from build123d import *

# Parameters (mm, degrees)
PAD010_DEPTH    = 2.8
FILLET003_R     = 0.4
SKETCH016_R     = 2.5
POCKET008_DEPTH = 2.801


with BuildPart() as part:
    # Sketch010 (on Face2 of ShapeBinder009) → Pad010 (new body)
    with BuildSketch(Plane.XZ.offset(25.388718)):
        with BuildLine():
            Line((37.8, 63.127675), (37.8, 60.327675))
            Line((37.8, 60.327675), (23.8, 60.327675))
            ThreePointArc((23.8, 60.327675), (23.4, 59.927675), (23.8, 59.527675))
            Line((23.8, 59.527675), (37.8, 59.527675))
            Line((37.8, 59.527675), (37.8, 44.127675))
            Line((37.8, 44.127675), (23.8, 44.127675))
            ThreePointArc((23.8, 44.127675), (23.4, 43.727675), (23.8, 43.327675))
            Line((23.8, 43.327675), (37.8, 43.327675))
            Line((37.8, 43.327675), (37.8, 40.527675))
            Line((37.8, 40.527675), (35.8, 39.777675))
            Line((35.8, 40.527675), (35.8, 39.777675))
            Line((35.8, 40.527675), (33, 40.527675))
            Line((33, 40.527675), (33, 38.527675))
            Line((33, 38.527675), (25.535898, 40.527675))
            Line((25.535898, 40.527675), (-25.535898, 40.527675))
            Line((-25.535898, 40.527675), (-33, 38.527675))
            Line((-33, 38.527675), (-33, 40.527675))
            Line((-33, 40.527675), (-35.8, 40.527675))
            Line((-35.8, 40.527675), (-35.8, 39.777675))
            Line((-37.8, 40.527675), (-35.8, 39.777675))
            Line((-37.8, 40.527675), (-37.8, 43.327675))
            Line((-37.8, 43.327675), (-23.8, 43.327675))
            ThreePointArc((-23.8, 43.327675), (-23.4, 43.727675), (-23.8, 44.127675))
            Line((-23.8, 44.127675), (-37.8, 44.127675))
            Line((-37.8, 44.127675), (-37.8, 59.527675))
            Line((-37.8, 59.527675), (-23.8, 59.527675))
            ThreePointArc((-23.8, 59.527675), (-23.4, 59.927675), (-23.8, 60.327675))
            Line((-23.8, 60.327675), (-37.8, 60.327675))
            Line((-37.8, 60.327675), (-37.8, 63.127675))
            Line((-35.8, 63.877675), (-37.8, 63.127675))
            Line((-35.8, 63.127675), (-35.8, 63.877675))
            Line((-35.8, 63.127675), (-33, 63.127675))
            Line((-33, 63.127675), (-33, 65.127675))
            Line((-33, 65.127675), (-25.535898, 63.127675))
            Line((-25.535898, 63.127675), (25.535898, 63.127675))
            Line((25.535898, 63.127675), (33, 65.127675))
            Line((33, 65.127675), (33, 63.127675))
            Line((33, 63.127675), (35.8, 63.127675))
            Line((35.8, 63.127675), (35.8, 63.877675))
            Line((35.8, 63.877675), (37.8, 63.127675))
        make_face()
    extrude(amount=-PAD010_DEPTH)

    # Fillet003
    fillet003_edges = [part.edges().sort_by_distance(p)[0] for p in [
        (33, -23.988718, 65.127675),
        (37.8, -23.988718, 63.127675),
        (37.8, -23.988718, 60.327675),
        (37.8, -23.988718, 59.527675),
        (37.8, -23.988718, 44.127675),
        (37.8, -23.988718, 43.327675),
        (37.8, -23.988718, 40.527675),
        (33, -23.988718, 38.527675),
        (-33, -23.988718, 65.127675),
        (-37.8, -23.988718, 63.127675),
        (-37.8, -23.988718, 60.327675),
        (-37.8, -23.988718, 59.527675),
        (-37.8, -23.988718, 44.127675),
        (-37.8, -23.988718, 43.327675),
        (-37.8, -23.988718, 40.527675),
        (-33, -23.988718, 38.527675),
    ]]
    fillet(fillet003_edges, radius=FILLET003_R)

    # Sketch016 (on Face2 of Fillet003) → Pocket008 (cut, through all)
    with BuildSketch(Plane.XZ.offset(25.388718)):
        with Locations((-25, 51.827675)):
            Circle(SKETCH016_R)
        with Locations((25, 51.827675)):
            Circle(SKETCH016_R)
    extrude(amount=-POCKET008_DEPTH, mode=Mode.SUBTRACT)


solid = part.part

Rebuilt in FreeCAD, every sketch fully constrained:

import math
import FreeCAD as App
import Part
import Sketcher

V = App.Vector
Q = App.Units.Quantity


def edges_at(feature, points):
    """Names of the edges that pass closest to the given points."""
    edges = feature.Shape.Edges
    near = lambda p: min(range(len(edges)), key=lambda i: edges[i].distToShape(Part.Vertex(*p))[0])
    return sorted({f"Edge{near(p) + 1}" for p in points})

doc = App.newDocument("Part")
params = doc.addObject("Spreadsheet::Sheet", "Params")
for row, (alias, value) in enumerate([
    ("sketch1_radius", "0.4 mm"),
    ("sketch1_width", "14 mm"),
    ("sketch1_height", "2 mm"),
    ("sketch1_width2", "2.8 mm"),
    ("sketch1_height2", "15.4 mm"),
    ("pad1_length", "2.8 mm"),
    ("fillet_radius", "0.4 mm"),
    ("sketch2_diameter", "5 mm"),
], start=1):
    params.set(f"A{row}", alias)
    params.set(f"B{row}", "=" + value)
    params.setAlias(f"B{row}", alias)

body = doc.addObject("PartDesign::Body", "Body")

sketch1 = body.newObject("Sketcher::SketchObject", "Sketch")
sketch1.AttachmentSupport = (doc.getObject("XZ_Plane"), [""])
sketch1.MapMode = "FlatFace"
sketch1.AttachmentOffset = App.Placement(V(0, 0, 25.388718), App.Rotation())
sketch1.addGeometry(Part.LineSegment(V(37.8, 60.33, 0), V(37.8, 63.13, 0)), False)
sketch1.addGeometry(Part.LineSegment(V(37.8, 63.13, 0), V(35.8, 63.88, 0)), False)
sketch1.addGeometry(Part.LineSegment(V(35.8, 63.88, 0), V(35.8, 63.13, 0)), False)
sketch1.addGeometry(Part.LineSegment(V(35.8, 63.13, 0), V(33, 63.13, 0)), False)
sketch1.addGeometry(Part.LineSegment(V(33, 63.13, 0), V(33, 65.13, 0)), False)
sketch1.addGeometry(Part.LineSegment(V(33, 65.13, 0), V(25.54, 63.13, 0)), False)
sketch1.addGeometry(Part.LineSegment(V(25.54, 63.13, 0), V(-25.54, 63.13, 0)), False)
sketch1.addGeometry(Part.LineSegment(V(-25.54, 63.13, 0), V(-33, 65.13, 0)), False)
sketch1.addGeometry(Part.LineSegment(V(-33, 65.13, 0), V(-33, 63.13, 0)), False)
sketch1.addGeometry(Part.LineSegment(V(-33, 63.13, 0), V(-35.8, 63.13, 0)), False)
sketch1.addGeometry(Part.LineSegment(V(-35.8, 63.13, 0), V(-35.8, 63.88, 0)), False)
sketch1.addGeometry(Part.LineSegment(V(-35.8, 63.88, 0), V(-37.8, 63.13, 0)), False)
sketch1.addGeometry(Part.LineSegment(V(-37.8, 63.13, 0), V(-37.8, 60.33, 0)), False)
sketch1.addGeometry(Part.LineSegment(V(-37.8, 60.33, 0), V(-23.8, 60.33, 0)), False)
sketch1.addGeometry(Part.ArcOfCircle(Part.Circle(V(-23.8, 59.93, 0), V(0, 0, 1), 0.4), math.radians(-90), math.radians(90)), False)
sketch1.addGeometry(Part.LineSegment(V(-23.8, 59.53, 0), V(-37.8, 59.53, 0)), False)
sketch1.addGeometry(Part.LineSegment(V(-37.8, 59.53, 0), V(-37.8, 44.13, 0)), False)
sketch1.addGeometry(Part.LineSegment(V(-37.8, 44.13, 0), V(-23.8, 44.13, 0)), False)
sketch1.addGeometry(Part.ArcOfCircle(Part.Circle(V(-23.8, 43.73, 0), V(0, 0, 1), 0.4), math.radians(-90), math.radians(90)), False)
sketch1.addGeometry(Part.LineSegment(V(-23.8, 43.33, 0), V(-37.8, 43.33, 0)), False)
sketch1.addGeometry(Part.LineSegment(V(-37.8, 43.33, 0), V(-37.8, 40.53, 0)), False)
sketch1.addGeometry(Part.LineSegment(V(-37.8, 40.53, 0), V(-35.8, 39.78, 0)), False)
sketch1.addGeometry(Part.LineSegment(V(-35.8, 39.78, 0), V(-35.8, 40.53, 0)), False)
sketch1.addGeometry(Part.LineSegment(V(-35.8, 40.53, 0), V(-33, 40.53, 0)), False)
sketch1.addGeometry(Part.LineSegment(V(-33, 40.53, 0), V(-33, 38.53, 0)), False)
sketch1.addGeometry(Part.LineSegment(V(-33, 38.53, 0), V(-25.54, 40.53, 0)), False)
sketch1.addGeometry(Part.LineSegment(V(-25.54, 40.53, 0), V(25.54, 40.53, 0)), False)
sketch1.addGeometry(Part.LineSegment(V(25.54, 40.53, 0), V(33, 38.53, 0)), False)
sketch1.addGeometry(Part.LineSegment(V(33, 38.53, 0), V(33, 40.53, 0)), False)
sketch1.addGeometry(Part.LineSegment(V(33, 40.53, 0), V(35.8, 40.53, 0)), False)
sketch1.addGeometry(Part.LineSegment(V(35.8, 40.53, 0), V(35.8, 39.78, 0)), False)
sketch1.addGeometry(Part.LineSegment(V(35.8, 39.78, 0), V(37.8, 40.53, 0)), False)
sketch1.addGeometry(Part.LineSegment(V(37.8, 40.53, 0), V(37.8, 43.33, 0)), False)
sketch1.addGeometry(Part.LineSegment(V(37.8, 43.33, 0), V(23.8, 43.33, 0)), False)
sketch1.addGeometry(Part.ArcOfCircle(Part.Circle(V(23.8, 43.73, 0), V(0, 0, 1), 0.4), math.radians(90), math.radians(270)), False)
sketch1.addGeometry(Part.LineSegment(V(23.8, 44.13, 0), V(37.8, 44.13, 0)), False)
sketch1.addGeometry(Part.LineSegment(V(37.8, 44.13, 0), V(37.8, 59.53, 0)), False)
sketch1.addGeometry(Part.LineSegment(V(37.8, 59.53, 0), V(23.8, 59.53, 0)), False)
sketch1.addGeometry(Part.ArcOfCircle(Part.Circle(V(23.8, 59.93, 0), V(0, 0, 1), 0.4), math.radians(90), math.radians(270)), False)
sketch1.addGeometry(Part.LineSegment(V(23.8, 60.33, 0), V(37.8, 60.33, 0)), False)
sketch1.addConstraint(Sketcher.Constraint("Coincident", 0, 2, 1, 1))
sketch1.addConstraint(Sketcher.Constraint("Coincident", 1, 2, 2, 1))
sketch1.addConstraint(Sketcher.Constraint("Coincident", 2, 2, 3, 1))
sketch1.addConstraint(Sketcher.Constraint("Coincident", 3, 2, 4, 1))
sketch1.addConstraint(Sketcher.Constraint("Coincident", 4, 2, 5, 1))
sketch1.addConstraint(Sketcher.Constraint("Coincident", 5, 2, 6, 1))
sketch1.addConstraint(Sketcher.Constraint("Coincident", 6, 2, 7, 1))
sketch1.addConstraint(Sketcher.Constraint("Coincident", 7, 2, 8, 1))
sketch1.addConstraint(Sketcher.Constraint("Coincident", 8, 2, 9, 1))
sketch1.addConstraint(Sketcher.Constraint("Coincident", 9, 2, 10, 1))
sketch1.addConstraint(Sketcher.Constraint("Coincident", 10, 2, 11, 1))
sketch1.addConstraint(Sketcher.Constraint("Coincident", 11, 2, 12, 1))
sketch1.addConstraint(Sketcher.Constraint("Coincident", 12, 2, 13, 1))
sketch1.addConstraint(Sketcher.Constraint("Tangent", 13, 2, 14, 2))
sketch1.addConstraint(Sketcher.Constraint("Tangent", 14, 1, 15, 1))
sketch1.addConstraint(Sketcher.Constraint("Coincident", 15, 2, 16, 1))
sketch1.addConstraint(Sketcher.Constraint("Coincident", 16, 2, 17, 1))
sketch1.addConstraint(Sketcher.Constraint("Tangent", 17, 2, 18, 2))
sketch1.addConstraint(Sketcher.Constraint("Tangent", 18, 1, 19, 1))
sketch1.addConstraint(Sketcher.Constraint("Coincident", 19, 2, 20, 1))
sketch1.addConstraint(Sketcher.Constraint("Coincident", 20, 2, 21, 1))
sketch1.addConstraint(Sketcher.Constraint("Coincident", 21, 2, 22, 1))
sketch1.addConstraint(Sketcher.Constraint("Coincident", 22, 2, 23, 1))
sketch1.addConstraint(Sketcher.Constraint("Coincident", 23, 2, 24, 1))
sketch1.addConstraint(Sketcher.Constraint("Coincident", 24, 2, 25, 1))
sketch1.addConstraint(Sketcher.Constraint("Coincident", 25, 2, 26, 1))
sketch1.addConstraint(Sketcher.Constraint("Coincident", 26, 2, 27, 1))
sketch1.addConstraint(Sketcher.Constraint("Coincident", 27, 2, 28, 1))
sketch1.addConstraint(Sketcher.Constraint("Coincident", 28, 2, 29, 1))
sketch1.addConstraint(Sketcher.Constraint("Coincident", 29, 2, 30, 1))
sketch1.addConstraint(Sketcher.Constraint("Coincident", 30, 2, 31, 1))
sketch1.addConstraint(Sketcher.Constraint("Coincident", 31, 2, 32, 1))
sketch1.addConstraint(Sketcher.Constraint("Coincident", 32, 2, 33, 1))
sketch1.addConstraint(Sketcher.Constraint("Tangent", 33, 2, 34, 2))
sketch1.addConstraint(Sketcher.Constraint("Tangent", 34, 1, 35, 1))
sketch1.addConstraint(Sketcher.Constraint("Coincident", 35, 2, 36, 1))
sketch1.addConstraint(Sketcher.Constraint("Coincident", 36, 2, 37, 1))
sketch1.addConstraint(Sketcher.Constraint("Tangent", 37, 2, 38, 2))
sketch1.addConstraint(Sketcher.Constraint("Tangent", 38, 1, 39, 1))
sketch1.addConstraint(Sketcher.Constraint("Coincident", 39, 2, 0, 1))
sketch1.addConstraint(Sketcher.Constraint("Vertical", 0))
sketch1.addConstraint(Sketcher.Constraint("Vertical", 2))
sketch1.addConstraint(Sketcher.Constraint("Horizontal", 3))
sketch1.addConstraint(Sketcher.Constraint("Vertical", 4))
sketch1.addConstraint(Sketcher.Constraint("Horizontal", 6))
sketch1.addConstraint(Sketcher.Constraint("Vertical", 8))
sketch1.addConstraint(Sketcher.Constraint("Horizontal", 9))
sketch1.addConstraint(Sketcher.Constraint("Vertical", 10))
sketch1.addConstraint(Sketcher.Constraint("Vertical", 12))
sketch1.addConstraint(Sketcher.Constraint("Horizontal", 13))
sketch1.addConstraint(Sketcher.Constraint("Horizontal", 15))
sketch1.addConstraint(Sketcher.Constraint("Vertical", 16))
sketch1.addConstraint(Sketcher.Constraint("Horizontal", 17))
sketch1.addConstraint(Sketcher.Constraint("Horizontal", 19))
sketch1.addConstraint(Sketcher.Constraint("Vertical", 20))
sketch1.addConstraint(Sketcher.Constraint("Vertical", 22))
sketch1.addConstraint(Sketcher.Constraint("Horizontal", 23))
sketch1.addConstraint(Sketcher.Constraint("Vertical", 24))
sketch1.addConstraint(Sketcher.Constraint("Horizontal", 26))
sketch1.addConstraint(Sketcher.Constraint("Vertical", 28))
sketch1.addConstraint(Sketcher.Constraint("Horizontal", 29))
sketch1.addConstraint(Sketcher.Constraint("Vertical", 30))
sketch1.addConstraint(Sketcher.Constraint("Vertical", 32))
sketch1.addConstraint(Sketcher.Constraint("Horizontal", 33))
sketch1.addConstraint(Sketcher.Constraint("Horizontal", 35))
sketch1.addConstraint(Sketcher.Constraint("Vertical", 36))
sketch1.addConstraint(Sketcher.Constraint("Horizontal", 37))
sketch1.addConstraint(Sketcher.Constraint("Horizontal", 39))
sketch1.addConstraint(Sketcher.Constraint("Equal", 14, 18))
sketch1.addConstraint(Sketcher.Constraint("Equal", 18, 34))
sketch1.addConstraint(Sketcher.Constraint("Equal", 34, 38))
sketch1.addConstraint(Sketcher.Constraint("Symmetric", 18, 3, 34, 3, -2))
sketch1.addConstraint(Sketcher.Constraint("Symmetric", 14, 3, 38, 3, -2))
sketch1.addConstraint(Sketcher.Constraint("Symmetric", 4, 2, 7, 2, -2))
sketch1.addConstraint(Sketcher.Constraint("Symmetric", 2, 2, 9, 2, -2))
sketch1.addConstraint(Sketcher.Constraint("Symmetric", 0, 2, 11, 2, -2))
sketch1.addConstraint(Sketcher.Constraint("Symmetric", 24, 2, 27, 2, -2))
sketch1.addConstraint(Sketcher.Constraint("Symmetric", 22, 2, 29, 2, -2))
sketch1.addConstraint(Sketcher.Constraint("Symmetric", 20, 2, 31, 2, -2))
sketch1.addConstraint(Sketcher.Constraint("Parallel", 1, 21))
sketch1.addConstraint(Sketcher.Constraint("Parallel", 5, 25))
sketch1.addConstraint(Sketcher.Constraint("Parallel", 7, 27))
sketch1.addConstraint(Sketcher.Constraint("Parallel", 11, 31))
sketch1.addConstraint(Sketcher.Constraint("Horizontal", 0, 2, 2, 2))
sketch1.addConstraint(Sketcher.Constraint("Horizontal", 3, 2, 5, 2))
sketch1.addConstraint(Sketcher.Constraint("Horizontal", 1, 2, 10, 2))
sketch1.addConstraint(Sketcher.Constraint("Horizontal", 20, 2, 22, 2))
sketch1.addConstraint(Sketcher.Constraint("Horizontal", 23, 2, 25, 2))
sketch1.addConstraint(Sketcher.Constraint("Vertical", 14, 3, 18, 3))
sketch1.addConstraint(Sketcher.Constraint("Vertical", 12, 2, 15, 2))
sketch1.addConstraint(Sketcher.Constraint("Vertical", 16, 2, 19, 2))
sketch1.addConstraint(Sketcher.Constraint("Vertical", 10, 2, 21, 2))
sketch1.addConstraint(Sketcher.Constraint("Vertical", 8, 2, 23, 2))
sketch1.addConstraint(Sketcher.Constraint("Vertical", 6, 2, 25, 2))
sketch1.addConstraint(Sketcher.Constraint("Vertical", 5, 2, 26, 2))
sketch1.addConstraint(Sketcher.Constraint("Vertical", 32, 2, 35, 2))
sketch1.addConstraint(Sketcher.Constraint("Equal", 29, 0))
sketch1.addConstraint(Sketcher.Constraint("Equal", 12, 20))
sketch1.addConstraint(Sketcher.Constraint("Radius", 14, 0.4))
sketch1.addConstraint(Sketcher.Constraint("DistanceX", 13, 1, 13, 2, 14.0))
sketch1.addConstraint(Sketcher.Constraint("DistanceY", 4, 1, 4, 2, 2.0))
sketch1.addConstraint(Sketcher.Constraint("Angle", 5, Q("-165.000001 deg")))
sketch1.addConstraint(Sketcher.Constraint("DistanceX", 3, 2, 3, 1, 2.8))
sketch1.addConstraint(Sketcher.Constraint("DistanceY", 16, 2, 16, 1, 15.4))
sketch1.addConstraint(Sketcher.Constraint("DistanceX", -1, 1, 3, 2, 33.0))
sketch1.addConstraint(Sketcher.Constraint("DistanceX", 1, 2, 0, 2, 2.0))
sketch1.addConstraint(Sketcher.Constraint("DistanceY", 2, 2, 2, 1, 0.75))
sketch1.addConstraint(Sketcher.Constraint("DistanceY", -1, 1, 14, 3, 59.927675))
sketch1.setExpression("Constraints[98]", "Params.sketch1_radius")
sketch1.setExpression("Constraints[99]", "Params.sketch1_width")
sketch1.setExpression("Constraints[100]", "Params.sketch1_height")
sketch1.setExpression("Constraints[102]", "Params.sketch1_width2")
sketch1.setExpression("Constraints[103]", "Params.sketch1_height2")
pad1 = body.newObject("PartDesign::Pad", "Pad")
pad1.Profile = sketch1
pad1.setExpression("Length", "Params.pad1_length")
pad1.Reversed = True
doc.recompute()

fillet = body.newObject("PartDesign::Fillet", "Fillet")
fillet.Base = (pad1, edges_at(pad1, [
    (33, -23.989, 65.128),
    (37.8, -23.989, 63.128),
    (37.8, -23.989, 60.328),
    (37.8, -23.989, 59.528),
    (37.8, -23.989, 44.128),
    (37.8, -23.989, 43.328),
    (37.8, -23.989, 40.528),
    (33, -23.989, 38.528),
    (-33, -23.989, 65.128),
    (-37.8, -23.989, 63.128),
    (-37.8, -23.989, 60.328),
    (-37.8, -23.989, 59.528),
    (-37.8, -23.989, 44.128),
    (-37.8, -23.989, 43.328),
    (-37.8, -23.989, 40.528),
    (-33, -23.989, 38.528),
]))
fillet.setExpression("Radius", "Params.fillet_radius")

sketch2 = body.newObject("Sketcher::SketchObject", "Sketch001")
sketch2.AttachmentSupport = (doc.getObject("XZ_Plane"), [""])
sketch2.MapMode = "FlatFace"
sketch2.AttachmentOffset = App.Placement(V(0, 0, 25.388718), App.Rotation())
sketch2.addGeometry(Part.Circle(V(-25, 51.8, 0), V(0, 0, 1), 2.5), False)
sketch2.addGeometry(Part.Circle(V(25, 51.8, 0), V(0, 0, 1), 2.5), False)
sketch2.addConstraint(Sketcher.Constraint("Equal", 0, 1))
sketch2.addConstraint(Sketcher.Constraint("Symmetric", 0, 3, 1, 3, -2))
sketch2.addConstraint(Sketcher.Constraint("Diameter", 0, 5.0))
sketch2.addConstraint(Sketcher.Constraint("DistanceX", 0, 3, -1, 1, 25.0))
sketch2.addConstraint(Sketcher.Constraint("DistanceY", -1, 1, 0, 3, 51.827675))
sketch2.setExpression("Constraints[2]", "Params.sketch2_diameter")
pocket1 = body.newObject("PartDesign::Pocket", "Pocket")
pocket1.Profile = sketch2
pocket1.Type = "ThroughAll"

doc.recompute()
